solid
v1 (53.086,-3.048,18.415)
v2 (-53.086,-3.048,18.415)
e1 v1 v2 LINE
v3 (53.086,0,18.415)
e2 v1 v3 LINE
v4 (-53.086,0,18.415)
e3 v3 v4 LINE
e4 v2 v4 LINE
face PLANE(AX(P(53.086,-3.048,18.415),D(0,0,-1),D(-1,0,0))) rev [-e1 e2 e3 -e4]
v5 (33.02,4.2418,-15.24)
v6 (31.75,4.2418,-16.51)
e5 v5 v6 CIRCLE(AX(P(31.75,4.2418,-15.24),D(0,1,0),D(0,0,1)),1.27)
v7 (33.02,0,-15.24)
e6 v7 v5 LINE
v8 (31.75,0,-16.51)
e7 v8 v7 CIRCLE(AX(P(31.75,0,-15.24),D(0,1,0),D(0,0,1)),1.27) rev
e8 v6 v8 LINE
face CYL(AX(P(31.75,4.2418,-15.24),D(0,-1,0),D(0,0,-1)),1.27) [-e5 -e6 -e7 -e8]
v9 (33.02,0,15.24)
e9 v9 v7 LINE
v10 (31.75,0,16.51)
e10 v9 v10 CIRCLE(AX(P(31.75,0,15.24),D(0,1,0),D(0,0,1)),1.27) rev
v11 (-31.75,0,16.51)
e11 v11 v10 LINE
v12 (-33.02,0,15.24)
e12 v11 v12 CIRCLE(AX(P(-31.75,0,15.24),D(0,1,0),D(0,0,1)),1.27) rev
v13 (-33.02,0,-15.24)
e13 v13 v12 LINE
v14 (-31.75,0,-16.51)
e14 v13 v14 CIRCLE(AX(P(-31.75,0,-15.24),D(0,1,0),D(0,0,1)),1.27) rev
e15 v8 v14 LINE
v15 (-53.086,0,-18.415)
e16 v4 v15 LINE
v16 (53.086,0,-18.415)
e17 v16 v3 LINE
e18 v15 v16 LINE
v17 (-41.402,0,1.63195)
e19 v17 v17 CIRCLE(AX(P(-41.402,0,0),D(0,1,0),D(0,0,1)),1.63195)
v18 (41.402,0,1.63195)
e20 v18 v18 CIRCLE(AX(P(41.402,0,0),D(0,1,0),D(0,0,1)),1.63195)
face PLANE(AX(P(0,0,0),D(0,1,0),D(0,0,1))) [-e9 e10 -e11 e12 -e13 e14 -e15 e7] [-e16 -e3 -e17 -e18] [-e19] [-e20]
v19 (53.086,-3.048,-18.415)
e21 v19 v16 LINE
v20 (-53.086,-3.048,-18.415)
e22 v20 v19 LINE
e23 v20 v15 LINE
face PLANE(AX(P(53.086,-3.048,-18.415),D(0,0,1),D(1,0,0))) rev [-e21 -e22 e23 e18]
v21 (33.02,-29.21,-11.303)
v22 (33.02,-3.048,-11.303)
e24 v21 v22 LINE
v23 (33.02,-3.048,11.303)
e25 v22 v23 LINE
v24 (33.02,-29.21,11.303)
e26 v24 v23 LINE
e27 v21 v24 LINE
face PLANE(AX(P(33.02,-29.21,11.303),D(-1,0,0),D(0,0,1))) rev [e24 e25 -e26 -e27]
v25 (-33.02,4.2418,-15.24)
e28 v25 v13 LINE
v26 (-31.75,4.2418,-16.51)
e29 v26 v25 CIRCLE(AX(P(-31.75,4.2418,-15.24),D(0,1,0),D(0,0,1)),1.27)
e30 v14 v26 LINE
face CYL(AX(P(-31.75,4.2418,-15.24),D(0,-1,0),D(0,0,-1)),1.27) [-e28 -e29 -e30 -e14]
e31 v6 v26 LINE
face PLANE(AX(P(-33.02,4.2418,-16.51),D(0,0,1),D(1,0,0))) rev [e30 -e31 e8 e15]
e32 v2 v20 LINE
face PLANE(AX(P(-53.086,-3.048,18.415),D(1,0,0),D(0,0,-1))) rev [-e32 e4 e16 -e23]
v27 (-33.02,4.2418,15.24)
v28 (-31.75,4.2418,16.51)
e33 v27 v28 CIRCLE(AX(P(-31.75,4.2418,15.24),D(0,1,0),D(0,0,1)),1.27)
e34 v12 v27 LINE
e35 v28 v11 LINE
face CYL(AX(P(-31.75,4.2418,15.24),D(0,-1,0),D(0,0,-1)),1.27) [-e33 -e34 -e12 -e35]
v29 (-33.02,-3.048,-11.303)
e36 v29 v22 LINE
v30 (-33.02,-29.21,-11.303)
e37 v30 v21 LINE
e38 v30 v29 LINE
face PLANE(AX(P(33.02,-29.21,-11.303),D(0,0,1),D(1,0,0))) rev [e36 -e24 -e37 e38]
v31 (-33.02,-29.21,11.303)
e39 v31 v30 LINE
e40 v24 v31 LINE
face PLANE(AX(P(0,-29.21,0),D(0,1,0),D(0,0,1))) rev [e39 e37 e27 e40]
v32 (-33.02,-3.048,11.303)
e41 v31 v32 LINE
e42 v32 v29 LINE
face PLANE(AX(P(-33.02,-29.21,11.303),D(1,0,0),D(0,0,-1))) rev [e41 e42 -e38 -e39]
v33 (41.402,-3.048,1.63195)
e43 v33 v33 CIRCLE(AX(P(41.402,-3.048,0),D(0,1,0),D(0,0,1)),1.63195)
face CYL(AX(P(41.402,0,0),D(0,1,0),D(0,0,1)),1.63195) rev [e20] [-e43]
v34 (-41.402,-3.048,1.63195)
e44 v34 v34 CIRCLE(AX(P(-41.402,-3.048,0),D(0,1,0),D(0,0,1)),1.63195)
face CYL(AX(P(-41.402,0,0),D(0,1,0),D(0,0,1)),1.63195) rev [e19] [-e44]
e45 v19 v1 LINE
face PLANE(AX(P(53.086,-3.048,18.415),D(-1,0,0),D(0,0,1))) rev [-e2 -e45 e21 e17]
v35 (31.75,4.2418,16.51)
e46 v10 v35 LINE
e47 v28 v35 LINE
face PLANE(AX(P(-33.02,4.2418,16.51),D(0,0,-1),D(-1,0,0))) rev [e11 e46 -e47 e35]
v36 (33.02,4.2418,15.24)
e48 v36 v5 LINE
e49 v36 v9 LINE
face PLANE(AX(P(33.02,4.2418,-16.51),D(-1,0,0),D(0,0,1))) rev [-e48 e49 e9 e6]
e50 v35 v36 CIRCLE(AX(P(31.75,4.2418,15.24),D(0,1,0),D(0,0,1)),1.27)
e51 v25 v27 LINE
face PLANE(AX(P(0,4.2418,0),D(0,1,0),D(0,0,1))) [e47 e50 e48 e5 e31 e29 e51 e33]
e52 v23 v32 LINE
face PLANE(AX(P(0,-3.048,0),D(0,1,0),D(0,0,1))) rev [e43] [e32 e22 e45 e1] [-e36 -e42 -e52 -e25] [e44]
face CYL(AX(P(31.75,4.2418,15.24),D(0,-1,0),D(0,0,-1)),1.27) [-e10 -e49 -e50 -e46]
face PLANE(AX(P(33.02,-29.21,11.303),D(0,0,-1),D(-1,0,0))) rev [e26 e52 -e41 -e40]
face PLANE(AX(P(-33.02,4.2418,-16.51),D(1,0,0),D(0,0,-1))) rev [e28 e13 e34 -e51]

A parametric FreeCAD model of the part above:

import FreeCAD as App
import Part
import Sketcher

V = App.Vector
Q = App.Units.Quantity


def edges_at(feature, points):
    """Names of the edges that pass closest to the given points."""
    edges = feature.Shape.Edges
    near = lambda p: min(range(len(edges)), key=lambda i: edges[i].distToShape(Part.Vertex(*p))[0])
    return sorted({f"Edge{near(p) + 1}" for p in points})

doc = App.newDocument("Part")
params = doc.addObject("Spreadsheet::Sheet", "Params")
for row, (alias, value) in enumerate([
    ("sketch1_width", "2.6 in"),
    ("sketch1_height", "1.3 in"),
    ("pad1_length", "0.167 in"),
    ("fillet_radius", "0.05 in"),
    ("sketch2_width", "4.18 in"),
    ("sketch2_height", "1.45 in"),
    ("pad2_length", "0.12 in"),
    ("hole_diameter", "0.1285 in"),
    ("sketch4_width", "2.6 in"),
    ("sketch4_height", "0.89 in"),
    ("pad3_length", "1.03 in"),
], start=1):
    params.set(f"A{row}", alias)
    params.set(f"B{row}", "=" + value)
    params.setAlias(f"B{row}", alias)

body = doc.addObject("PartDesign::Body", "Body")

sketch1 = body.newObject("Sketcher::SketchObject", "Sketch")
sketch1.AttachmentSupport = (doc.getObject("XZ_Plane"), [""])
sketch1.MapMode = "FlatFace"
sketch1.addGeometry([
    Part.LineSegment(V(-33, -17, 0), V(-33, 17, 0)),
    Part.LineSegment(V(-33, 17, 0), V(33, 17, 0)),
    Part.LineSegment(V(33, 17, 0), V(33, -17, 0)),
    Part.LineSegment(V(33, -17, 0), V(-33, -17, 0)),
], False)
sketch1.addConstraint([
    Sketcher.Constraint("Coincident", 0, 2, 1, 1),
    Sketcher.Constraint("Coincident", 1, 2, 2, 1),
    Sketcher.Constraint("Coincident", 2, 2, 3, 1),
    Sketcher.Constraint("Coincident", 3, 2, 0, 1),
    Sketcher.Constraint("Vertical", 0),
    Sketcher.Constraint("Horizontal", 1),
    Sketcher.Constraint("Vertical", 2),
    Sketcher.Constraint("Horizontal", 3),
    Sketcher.Constraint("Symmetric", 0, 2, 2, 2, -1, 1),
    Sketcher.Constraint("DistanceX", 1, 1, 1, 2, Q("2.6 in")),
    Sketcher.Constraint("DistanceY", 0, 1, 0, 2, Q("1.3 in")),
])
sketch1.setExpression("Constraints[9]", "Params.sketch1_width")
sketch1.setExpression("Constraints[10]", "Params.sketch1_height")
pad1 = body.newObject("PartDesign::Pad", "Pad")
pad1.Profile = sketch1
pad1.setExpression("Length", "Params.pad1_length")
pad1.Reversed = True
doc.recompute()

fillet = body.newObject("PartDesign::Fillet", "Fillet")
fillet.Base = (pad1, edges_at(pad1, [
    (33.02, 2.121, 16.51),
    (-33.02, 2.121, 16.51),
    (-33.02, 2.121, -16.51),
    (33.02, 2.121, -16.51),
]))
fillet.setExpression("Radius", "Params.fillet_radius")

sketch2 = body.newObject("Sketcher::SketchObject", "Sketch001")
sketch2.AttachmentSupport = (doc.getObject("XZ_Plane"), [""])
sketch2.MapMode = "FlatFace"
sketch2.addGeometry([
    Part.LineSegment(V(-53, 18, 0), V(-53, -18, 0)),
    Part.LineSegment(V(-53, -18, 0), V(53, -18, 0)),
    Part.LineSegment(V(53, -18, 0), V(53, 18, 0)),
    Part.LineSegment(V(53, 18, 0), V(-53, 18, 0)),
], False)
sketch2.addConstraint([
    Sketcher.Constraint("Coincident", 0, 2, 1, 1),
    Sketcher.Constraint("Coincident", 1, 2, 2, 1),
    Sketcher.Constraint("Coincident", 2, 2, 3, 1),
    Sketcher.Constraint("Coincident", 3, 2, 0, 1),
    Sketcher.Constraint("Vertical", 0),
    Sketcher.Constraint("Horizontal", 1),
    Sketcher.Constraint("Vertical", 2),
    Sketcher.Constraint("Horizontal", 3),
    Sketcher.Constraint("Symmetric", 0, 2, 2, 2, -1, 1),
    Sketcher.Constraint("DistanceX", 1, 1, 1, 2, Q("4.18 in")),
    Sketcher.Constraint("DistanceY", 0, 2, 0, 1, Q("1.45 in")),
])
sketch2.setExpression("Constraints[9]", "Params.sketch2_width")
sketch2.setExpression("Constraints[10]", "Params.sketch2_height")
pad2 = body.newObject("PartDesign::Pad", "Pad001")
pad2.Profile = sketch2
pad2.setExpression("Length", "Params.pad2_length")

sketch3 = body.newObject("Sketcher::SketchObject", "Sketch002")
sketch3.AttachmentSupport = (doc.getObject("XZ_Plane"), [""])
sketch3.MapMode = "FlatFace"
sketch3.addGeometry([
    Part.Circle(V(-41.4, 0, 0), V(0, 0, 1), 1.6),
    Part.Circle(V(41.4, 0, 0), V(0, 0, 1), 1.6),
], False)
sketch3.addConstraint([
    Sketcher.Constraint("Equal", 0, 1),
    Sketcher.Constraint("Symmetric", 0, 3, 1, 3, -1, 1),
    Sketcher.Constraint("PointOnObject", 0, 3, -1),
    Sketcher.Constraint("Diameter", 0, Q("0.1285 in")),
    Sketcher.Constraint("DistanceX", 0, 3, -1, 1, Q("1.63 in")),
])
doc.recompute()
hole = body.newObject("PartDesign::Hole", "Hole")
hole.Profile = sketch3
hole.ThreadType = "None"
hole.setExpression("Diameter", "Params.hole_diameter")
hole.DepthType = "ThroughAll"
hole.Reversed = True

sketch4 = body.newObject("Sketcher::SketchObject", "Sketch003")
sketch4.AttachmentSupport = (doc.getObject("XZ_Plane"), [""])
sketch4.MapMode = "FlatFace"
sketch4.AttachmentOffset = App.Placement(V(0, 0, 0.12 * 25.4), App.Rotation())
sketch4.addGeometry([
    Part.LineSegment(V(-33, 11, 0), V(-33, -11, 0)),
    Part.LineSegment(V(-33, -11, 0), V(33, -11, 0)),
    Part.LineSegment(V(33, -11, 0), V(33, 11, 0)),
    Part.LineSegment(V(33, 11, 0), V(-33, 11, 0)),
], False)
sketch4.addConstraint([
    Sketcher.Constraint("Coincident", 0, 2, 1, 1),
    Sketcher.Constraint("Coincident", 1, 2, 2, 1),
    Sketcher.Constraint("Coincident", 2, 2, 3, 1),
    Sketcher.Constraint("Coincident", 3, 2, 0, 1),
    Sketcher.Constraint("Vertical", 0),
    Sketcher.Constraint("Horizontal", 1),
    Sketcher.Constraint("Vertical", 2),
    Sketcher.Constraint("Horizontal", 3),
    Sketcher.Constraint("Symmetric", 0, 2, 2, 2, -1, 1),
    Sketcher.Constraint("DistanceX", 1, 1, 1, 2, Q("2.6 in")),
    Sketcher.Constraint("DistanceY", 0, 2, 0, 1, Q("0.89 in")),
])
sketch4.setExpression("Constraints[9]", "Params.sketch4_width")
sketch4.setExpression("Constraints[10]", "Params.sketch4_height")
pad3 = body.newObject("PartDesign::Pad", "Pad002")
pad3.Profile = sketch4
pad3.setExpression("Length", "Params.pad3_length")

doc.recompute()
